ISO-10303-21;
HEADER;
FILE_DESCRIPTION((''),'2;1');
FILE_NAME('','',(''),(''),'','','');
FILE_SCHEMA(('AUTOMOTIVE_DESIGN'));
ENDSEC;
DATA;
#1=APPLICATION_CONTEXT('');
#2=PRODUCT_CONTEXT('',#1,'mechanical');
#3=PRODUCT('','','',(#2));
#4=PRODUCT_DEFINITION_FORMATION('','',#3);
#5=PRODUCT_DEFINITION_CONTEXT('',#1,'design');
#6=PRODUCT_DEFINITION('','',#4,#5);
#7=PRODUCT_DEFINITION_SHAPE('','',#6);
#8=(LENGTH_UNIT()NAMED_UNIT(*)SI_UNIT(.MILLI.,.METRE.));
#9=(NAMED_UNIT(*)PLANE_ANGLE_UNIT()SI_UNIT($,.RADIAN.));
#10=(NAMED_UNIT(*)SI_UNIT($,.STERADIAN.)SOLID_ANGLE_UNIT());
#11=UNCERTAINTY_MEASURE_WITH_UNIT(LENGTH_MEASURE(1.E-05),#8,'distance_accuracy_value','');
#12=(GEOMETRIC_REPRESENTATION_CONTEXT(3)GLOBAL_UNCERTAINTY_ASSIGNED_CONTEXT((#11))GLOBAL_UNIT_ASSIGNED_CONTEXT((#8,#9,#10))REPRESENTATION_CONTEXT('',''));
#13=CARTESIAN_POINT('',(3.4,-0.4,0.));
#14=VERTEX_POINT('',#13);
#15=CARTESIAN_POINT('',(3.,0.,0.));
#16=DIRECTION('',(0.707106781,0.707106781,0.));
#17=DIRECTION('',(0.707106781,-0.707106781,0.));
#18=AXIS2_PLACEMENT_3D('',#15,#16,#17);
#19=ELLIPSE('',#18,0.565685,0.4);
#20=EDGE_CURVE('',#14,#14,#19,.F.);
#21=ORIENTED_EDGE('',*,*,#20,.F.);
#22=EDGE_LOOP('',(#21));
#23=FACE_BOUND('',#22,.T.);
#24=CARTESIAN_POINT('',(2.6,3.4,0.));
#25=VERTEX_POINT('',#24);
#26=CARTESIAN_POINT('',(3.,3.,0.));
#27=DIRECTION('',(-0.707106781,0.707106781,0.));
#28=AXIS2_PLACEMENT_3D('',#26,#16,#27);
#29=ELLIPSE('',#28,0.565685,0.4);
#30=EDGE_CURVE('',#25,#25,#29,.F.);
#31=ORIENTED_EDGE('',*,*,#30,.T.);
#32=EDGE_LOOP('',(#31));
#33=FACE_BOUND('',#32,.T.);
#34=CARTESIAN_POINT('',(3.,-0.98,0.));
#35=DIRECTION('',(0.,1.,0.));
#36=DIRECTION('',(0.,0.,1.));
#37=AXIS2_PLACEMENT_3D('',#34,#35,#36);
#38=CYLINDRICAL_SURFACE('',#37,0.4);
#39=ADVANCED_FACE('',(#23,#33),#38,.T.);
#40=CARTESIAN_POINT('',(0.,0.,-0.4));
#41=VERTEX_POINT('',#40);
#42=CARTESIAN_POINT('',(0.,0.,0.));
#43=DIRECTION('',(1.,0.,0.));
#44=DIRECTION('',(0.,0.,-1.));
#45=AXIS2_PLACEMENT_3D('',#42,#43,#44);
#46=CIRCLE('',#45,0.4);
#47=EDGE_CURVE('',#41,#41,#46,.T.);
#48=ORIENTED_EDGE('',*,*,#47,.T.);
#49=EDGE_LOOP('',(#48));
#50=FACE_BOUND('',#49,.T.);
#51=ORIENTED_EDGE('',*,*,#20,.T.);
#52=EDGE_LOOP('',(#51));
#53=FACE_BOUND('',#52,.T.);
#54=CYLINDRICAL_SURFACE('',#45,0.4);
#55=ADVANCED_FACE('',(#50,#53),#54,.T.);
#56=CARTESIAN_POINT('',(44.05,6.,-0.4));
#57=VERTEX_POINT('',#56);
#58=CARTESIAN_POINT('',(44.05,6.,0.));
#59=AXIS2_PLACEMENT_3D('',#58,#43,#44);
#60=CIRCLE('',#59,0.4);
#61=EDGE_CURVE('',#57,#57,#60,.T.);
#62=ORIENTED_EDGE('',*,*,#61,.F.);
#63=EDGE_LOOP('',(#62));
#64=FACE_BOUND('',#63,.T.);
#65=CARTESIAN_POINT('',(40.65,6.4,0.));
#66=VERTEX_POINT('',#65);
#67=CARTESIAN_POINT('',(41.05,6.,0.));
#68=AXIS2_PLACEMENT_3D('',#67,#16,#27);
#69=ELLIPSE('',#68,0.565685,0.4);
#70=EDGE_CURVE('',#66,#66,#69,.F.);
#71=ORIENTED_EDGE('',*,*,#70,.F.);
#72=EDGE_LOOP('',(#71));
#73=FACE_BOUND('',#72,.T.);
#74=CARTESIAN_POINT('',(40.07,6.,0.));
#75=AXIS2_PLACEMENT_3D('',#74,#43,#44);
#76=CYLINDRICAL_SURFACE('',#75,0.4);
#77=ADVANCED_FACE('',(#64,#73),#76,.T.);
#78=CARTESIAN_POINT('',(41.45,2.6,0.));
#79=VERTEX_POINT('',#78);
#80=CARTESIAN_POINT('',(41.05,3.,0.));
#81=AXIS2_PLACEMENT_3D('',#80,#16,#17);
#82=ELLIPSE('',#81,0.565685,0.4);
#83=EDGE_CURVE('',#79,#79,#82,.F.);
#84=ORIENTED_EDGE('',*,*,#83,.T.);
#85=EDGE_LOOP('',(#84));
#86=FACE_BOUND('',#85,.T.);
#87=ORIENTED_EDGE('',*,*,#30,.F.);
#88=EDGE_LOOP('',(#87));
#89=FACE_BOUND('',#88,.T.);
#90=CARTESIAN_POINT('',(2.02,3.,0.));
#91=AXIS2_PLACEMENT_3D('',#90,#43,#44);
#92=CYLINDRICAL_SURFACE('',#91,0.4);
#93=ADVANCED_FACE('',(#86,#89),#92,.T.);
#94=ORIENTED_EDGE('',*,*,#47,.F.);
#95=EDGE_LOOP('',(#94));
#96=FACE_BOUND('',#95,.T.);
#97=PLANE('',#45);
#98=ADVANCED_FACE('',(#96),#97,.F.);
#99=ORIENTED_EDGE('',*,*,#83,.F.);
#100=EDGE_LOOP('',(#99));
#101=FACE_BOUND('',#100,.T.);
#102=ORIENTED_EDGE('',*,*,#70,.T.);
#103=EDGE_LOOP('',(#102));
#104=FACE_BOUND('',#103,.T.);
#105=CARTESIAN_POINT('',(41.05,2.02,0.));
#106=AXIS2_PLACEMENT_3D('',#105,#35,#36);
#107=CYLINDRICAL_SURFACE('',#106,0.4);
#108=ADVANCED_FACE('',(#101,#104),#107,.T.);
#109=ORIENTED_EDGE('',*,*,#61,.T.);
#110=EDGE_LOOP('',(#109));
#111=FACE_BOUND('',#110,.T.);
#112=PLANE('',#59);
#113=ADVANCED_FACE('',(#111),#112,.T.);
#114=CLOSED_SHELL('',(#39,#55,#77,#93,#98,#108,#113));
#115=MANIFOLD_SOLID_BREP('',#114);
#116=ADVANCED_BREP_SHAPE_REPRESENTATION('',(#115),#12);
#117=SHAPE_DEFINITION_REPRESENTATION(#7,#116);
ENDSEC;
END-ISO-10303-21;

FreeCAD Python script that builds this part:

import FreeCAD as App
import Part
import Sketcher
Q = App.Units.Quantity

doc = App.newDocument("Part")
body = doc.addObject("PartDesign::Body", "Body")

sketch1 = body.newObject("Sketcher::SketchObject", "Sketch")
sketch1.AttachmentSupport = (doc.getObject("YZ_Plane"), [""])
sketch1.MapMode = "FlatFace"
sketch1.addGeometry(Part.Circle(App.Vector(0, 0, 0), App.Vector(0, 0, 1), 0.4), False)
sketch1.addConstraint(Sketcher.Constraint("Coincident", 0, 3, -1, 1))
sketch1.addConstraint(Sketcher.Constraint("Diameter", 0, Q("0.8 mm")))

sketch2 = body.newObject("Sketcher::SketchObject", "Sketch001")
sketch2.AttachmentSupport = (doc.getObject("XY_Plane"), [""])
sketch2.MapMode = "FlatFace"
sketch2.addGeometry(Part.LineSegment(App.Vector(0, 0, 0), App.Vector(3, 0, 0)), False)
sketch2.addGeometry(Part.LineSegment(App.Vector(3, 0, 0), App.Vector(3, 3, 0)), False)
sketch2.addGeometry(Part.LineSegment(App.Vector(3, 3, 0), App.Vector(41, 3, 0)), False)
sketch2.addGeometry(Part.LineSegment(App.Vector(41, 3, 0), App.Vector(41, 6, 0)), False)
sketch2.addGeometry(Part.LineSegment(App.Vector(41, 6, 0), App.Vector(44, 6, 0)), False)
sketch2.addConstraint(Sketcher.Constraint("Coincident", 0, 2, 1, 1))
sketch2.addConstraint(Sketcher.Constraint("Coincident", 1, 2, 2, 1))
sketch2.addConstraint(Sketcher.Constraint("Coincident", 2, 2, 3, 1))
sketch2.addConstraint(Sketcher.Constraint("Coincident", 3, 2, 4, 1))
sketch2.addConstraint(Sketcher.Constraint("Horizontal", 0))
sketch2.addConstraint(Sketcher.Constraint("Vertical", 1))
sketch2.addConstraint(Sketcher.Constraint("Horizontal", 2))
sketch2.addConstraint(Sketcher.Constraint("Vertical", 3))
sketch2.addConstraint(Sketcher.Constraint("Horizontal", 4))
sketch2.addConstraint(Sketcher.Constraint("Coincident", 0, 1, -1, 1))
sketch2.addConstraint(Sketcher.Constraint("Equal", 0, 4))
sketch2.addConstraint(Sketcher.Constraint("Equal", 4, 1))
sketch2.addConstraint(Sketcher.Constraint("Equal", 1, 3))
sketch2.addConstraint(Sketcher.Constraint("DistanceX", 0, 1, 0, 2, Q("3 mm")))
sketch2.addConstraint(Sketcher.Constraint("DistanceX", 2, 1, 2, 2, Q("38.05 mm")))
doc.recompute()

additivepipe = body.newObject("PartDesign::AdditivePipe", "AdditivePipe")
additivepipe.Profile = sketch1
additivepipe.Spine = (sketch2, ["Edge1", "Edge2", "Edge3", "Edge4", "Edge5"])
additivepipe.Transition = "Right corner"

doc.recompute()
